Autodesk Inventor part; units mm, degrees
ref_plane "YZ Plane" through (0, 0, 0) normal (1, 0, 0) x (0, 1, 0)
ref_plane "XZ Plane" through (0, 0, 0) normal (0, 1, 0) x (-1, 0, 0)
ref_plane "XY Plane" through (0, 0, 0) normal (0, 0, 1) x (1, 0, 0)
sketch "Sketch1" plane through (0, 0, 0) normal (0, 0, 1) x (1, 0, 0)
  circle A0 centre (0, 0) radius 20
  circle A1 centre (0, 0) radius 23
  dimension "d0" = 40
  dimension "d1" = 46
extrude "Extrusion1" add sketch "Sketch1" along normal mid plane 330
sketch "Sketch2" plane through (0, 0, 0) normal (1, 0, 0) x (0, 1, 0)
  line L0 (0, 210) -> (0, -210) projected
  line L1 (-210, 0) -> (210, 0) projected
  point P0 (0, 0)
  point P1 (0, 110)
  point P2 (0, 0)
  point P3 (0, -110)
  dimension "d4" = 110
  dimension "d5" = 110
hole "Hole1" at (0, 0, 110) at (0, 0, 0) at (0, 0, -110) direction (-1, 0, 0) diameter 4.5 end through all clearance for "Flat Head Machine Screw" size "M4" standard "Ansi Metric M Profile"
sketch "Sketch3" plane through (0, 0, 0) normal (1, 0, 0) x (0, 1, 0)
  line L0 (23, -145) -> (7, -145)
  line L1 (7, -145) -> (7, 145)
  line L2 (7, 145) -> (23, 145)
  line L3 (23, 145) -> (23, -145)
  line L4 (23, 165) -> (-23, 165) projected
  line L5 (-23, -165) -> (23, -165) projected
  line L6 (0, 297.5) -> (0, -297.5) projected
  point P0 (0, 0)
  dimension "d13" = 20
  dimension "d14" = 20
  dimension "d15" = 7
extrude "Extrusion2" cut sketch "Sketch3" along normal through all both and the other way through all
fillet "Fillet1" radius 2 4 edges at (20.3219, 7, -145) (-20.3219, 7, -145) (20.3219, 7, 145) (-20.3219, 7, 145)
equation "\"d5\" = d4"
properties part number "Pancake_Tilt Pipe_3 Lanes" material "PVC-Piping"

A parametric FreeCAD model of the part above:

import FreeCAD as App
import Part
import Sketcher

V = App.Vector


def edges_at(feature, points):
    """Names of the edges that pass closest to the given points."""
    edges = feature.Shape.Edges
    near = lambda p: min(range(len(edges)), key=lambda i: edges[i].distToShape(Part.Vertex(*p))[0])
    return sorted({f"Edge{near(p) + 1}" for p in points})


def add_polygon(sketch, points):
    """Adds a closed chain of lines whose ends are joined by coincident constraints."""
    first, n = sketch.GeometryCount, len(points)
    for a, b in zip(points, points[1:] + points[:1]):
        sketch.addGeometry(Part.LineSegment(App.Vector(*a, 0), App.Vector(*b, 0)), False)
    for i in range(n):
        sketch.addConstraint(Sketcher.Constraint("Coincident", first + i, 2, first + (i + 1) % n, 1))

doc = App.newDocument("Part")
body = doc.addObject("PartDesign::Body", "Body")

sketch1 = body.newObject("Sketcher::SketchObject", "Sketch")
sketch1.AttachmentSupport = (doc.getObject("XY_Plane"), [""])
sketch1.MapMode = "FlatFace"
sketch1.addGeometry(Part.Circle(V(0, 0, 0), V(0, 0, 1), 23), False)
sketch1.addGeometry(Part.Circle(V(0, 0, 0), V(0, 0, 1), 20), False)
sketch1.addConstraint(Sketcher.Constraint("Coincident", 0, 3, -1, 1))
sketch1.addConstraint(Sketcher.Constraint("Coincident", 1, 3, -1, 1))
sketch1.addConstraint(Sketcher.Constraint("Diameter", 0, 46.0))
sketch1.addConstraint(Sketcher.Constraint("Diameter", 1, 40.0))
pad1 = body.newObject("PartDesign::Pad", "Pad")
pad1.Profile = sketch1
pad1.Length = 330
pad1.Midplane = True

sketch2 = body.newObject("Sketcher::SketchObject", "Sketch001")
sketch2.AttachmentSupport = (doc.getObject("YZ_Plane"), [""])
sketch2.MapMode = "FlatFace"
sketch2.addGeometry(Part.Circle(V(0, 110, 0), V(0, 0, 1), 2.2), False)
sketch2.addGeometry(Part.Circle(V(0, 0, 0), V(0, 0, 1), 2.2), False)
sketch2.addGeometry(Part.Circle(V(0, -110, 0), V(0, 0, 1), 2.2), False)
sketch2.addConstraint(Sketcher.Constraint("Coincident", 1, 3, -1, 1))
sketch2.addConstraint(Sketcher.Constraint("Equal", 0, 1))
sketch2.addConstraint(Sketcher.Constraint("Equal", 1, 2))
sketch2.addConstraint(Sketcher.Constraint("Symmetric", 0, 3, 2, 3, -1, 1))
sketch2.addConstraint(Sketcher.Constraint("PointOnObject", 0, 3, -2))
sketch2.addConstraint(Sketcher.Constraint("Diameter", 0, 4.5))
sketch2.addConstraint(Sketcher.Constraint("DistanceY", -1, 1, 0, 3, 110.0))
doc.recompute()
hole = body.newObject("PartDesign::Hole", "Hole")
hole.Profile = sketch2
hole.ThreadType = "None"
hole.Diameter = 4.5
hole.DepthType = "ThroughAll"

sketch3 = body.newObject("Sketcher::SketchObject", "Sketch002")
sketch3.AttachmentSupport = (doc.getObject("YZ_Plane"), [""])
sketch3.MapMode = "FlatFace"
add_polygon(sketch3, [(7, -145), (23, -145), (23, 145), (7, 145)])
sketch3.addConstraint(Sketcher.Constraint("Horizontal", 0))
sketch3.addConstraint(Sketcher.Constraint("Vertical", 1))
sketch3.addConstraint(Sketcher.Constraint("Horizontal", 2))
sketch3.addConstraint(Sketcher.Constraint("Vertical", 3))
sketch3.addConstraint(Sketcher.Constraint("DistanceX", -1, 1, 2, 2, 7.0))
sketch3.addConstraint(Sketcher.Constraint("DistanceX", 0, 1, 0, 2, 16.0))
sketch3.addConstraint(Sketcher.Constraint("DistanceY", 1, 1, 1, 2, 290.0))
sketch3.addConstraint(Sketcher.Constraint("DistanceY", 0, 2, -1, 1, 145.0))
pocket1 = body.newObject("PartDesign::Pocket", "Pocket")
pocket1.Profile = sketch3
pocket1.Type = "ThroughAll"
pocket1.Midplane = True
doc.recompute()

fillet = body.newObject("PartDesign::Fillet", "Fillet")
fillet.Base = (pocket1, edges_at(pocket1, [
    (20.322, 7, -145),
    (-20.322, 7, -145),
    (20.322, 7, 145),
    (-20.322, 7, 145),
]))
fillet.Radius = 2

doc.recompute()
